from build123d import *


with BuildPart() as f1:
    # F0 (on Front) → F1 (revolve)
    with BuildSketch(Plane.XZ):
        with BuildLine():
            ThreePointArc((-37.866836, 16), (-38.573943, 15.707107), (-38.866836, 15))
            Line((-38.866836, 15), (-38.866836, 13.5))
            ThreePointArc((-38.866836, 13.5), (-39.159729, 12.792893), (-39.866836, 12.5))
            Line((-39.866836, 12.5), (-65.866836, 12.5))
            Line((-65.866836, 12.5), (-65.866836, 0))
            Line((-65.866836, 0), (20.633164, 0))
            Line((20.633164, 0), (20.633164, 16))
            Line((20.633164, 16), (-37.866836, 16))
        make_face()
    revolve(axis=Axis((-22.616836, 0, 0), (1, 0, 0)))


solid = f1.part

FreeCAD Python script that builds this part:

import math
import FreeCAD as App
import Part
import Sketcher
from FreeCAD import Vector

doc = App.newDocument("Part")
body = doc.addObject("PartDesign::Body", "Body")

sketch1 = body.newObject("Sketcher::SketchObject", "Sketch")
sketch1.AttachmentSupport = (doc.getObject("XZ_Plane"), [""])
sketch1.MapMode = "FlatFace"
sketch1.addGeometry(Part.ArcOfCircle(Part.Circle(Vector(-37.9, 15, 0), Vector(0, 0, 1), 1), math.radians(90), math.radians(180)), False)
sketch1.addGeometry(Part.LineSegment(Vector(-38.9, 15, 0), Vector(-38.9, 13.5, 0)), False)
sketch1.addGeometry(Part.ArcOfCircle(Part.Circle(Vector(-39.9, 13.5, 0), Vector(0, 0, 1), 1), math.radians(-90), math.radians(0)), False)
sketch1.addGeometry(Part.LineSegment(Vector(-39.9, 12.5, 0), Vector(-65.9, 12.5, 0)), False)
sketch1.addGeometry(Part.LineSegment(Vector(-65.9, 12.5, 0), Vector(-65.9, 0, 0)), False)
sketch1.addGeometry(Part.LineSegment(Vector(-65.9, 0, 0), Vector(20.6, 0, 0)), False)
sketch1.addGeometry(Part.LineSegment(Vector(20.6, 0, 0), Vector(20.6, 16, 0)), False)
sketch1.addGeometry(Part.LineSegment(Vector(20.6, 16, 0), Vector(-37.9, 16, 0)), False)
sketch1.addConstraint(Sketcher.Constraint("Tangent", 0, 2, 1, 1))
sketch1.addConstraint(Sketcher.Constraint("Tangent", 1, 2, 2, 2))
sketch1.addConstraint(Sketcher.Constraint("Tangent", 2, 1, 3, 1))
sketch1.addConstraint(Sketcher.Constraint("Coincident", 3, 2, 4, 1))
sketch1.addConstraint(Sketcher.Constraint("Coincident", 4, 2, 5, 1))
sketch1.addConstraint(Sketcher.Constraint("Coincident", 5, 2, 6, 1))
sketch1.addConstraint(Sketcher.Constraint("Coincident", 6, 2, 7, 1))
sketch1.addConstraint(Sketcher.Constraint("Tangent", 7, 2, 0, 1))
sketch1.addConstraint(Sketcher.Constraint("Vertical", 1))
sketch1.addConstraint(Sketcher.Constraint("Horizontal", 3))
sketch1.addConstraint(Sketcher.Constraint("Vertical", 4))
sketch1.addConstraint(Sketcher.Constraint("Horizontal", 5))
sketch1.addConstraint(Sketcher.Constraint("Vertical", 6))
sketch1.addConstraint(Sketcher.Constraint("Horizontal", 7))
sketch1.addConstraint(Sketcher.Constraint("Equal", 0, 2))
sketch1.addConstraint(Sketcher.Constraint("PointOnObject", 4, 2, -1))
sketch1.addConstraint(Sketcher.Constraint("Radius", 0, 0.999999))
sketch1.addConstraint(Sketcher.Constraint("DistanceX", 3, 2, 3, 1, 26.0))
sketch1.addConstraint(Sketcher.Constraint("DistanceY", 6, 1, 6, 2, 16.0))
sketch1.addConstraint(Sketcher.Constraint("DistanceX", 5, 1, 5, 2, 86.5))
sketch1.addConstraint(Sketcher.Constraint("DistanceY", 1, 2, 1, 1, 1.5))
sketch1.addConstraint(Sketcher.Constraint("DistanceX", 0, 3, -1, 1, 37.866837))
revolution = body.newObject("PartDesign::Revolution", "Revolution")
revolution.Profile = sketch1
revolution.ReferenceAxis = (sketch1, ["H_Axis"])
revolution.Angle = 360

doc.recompute()
